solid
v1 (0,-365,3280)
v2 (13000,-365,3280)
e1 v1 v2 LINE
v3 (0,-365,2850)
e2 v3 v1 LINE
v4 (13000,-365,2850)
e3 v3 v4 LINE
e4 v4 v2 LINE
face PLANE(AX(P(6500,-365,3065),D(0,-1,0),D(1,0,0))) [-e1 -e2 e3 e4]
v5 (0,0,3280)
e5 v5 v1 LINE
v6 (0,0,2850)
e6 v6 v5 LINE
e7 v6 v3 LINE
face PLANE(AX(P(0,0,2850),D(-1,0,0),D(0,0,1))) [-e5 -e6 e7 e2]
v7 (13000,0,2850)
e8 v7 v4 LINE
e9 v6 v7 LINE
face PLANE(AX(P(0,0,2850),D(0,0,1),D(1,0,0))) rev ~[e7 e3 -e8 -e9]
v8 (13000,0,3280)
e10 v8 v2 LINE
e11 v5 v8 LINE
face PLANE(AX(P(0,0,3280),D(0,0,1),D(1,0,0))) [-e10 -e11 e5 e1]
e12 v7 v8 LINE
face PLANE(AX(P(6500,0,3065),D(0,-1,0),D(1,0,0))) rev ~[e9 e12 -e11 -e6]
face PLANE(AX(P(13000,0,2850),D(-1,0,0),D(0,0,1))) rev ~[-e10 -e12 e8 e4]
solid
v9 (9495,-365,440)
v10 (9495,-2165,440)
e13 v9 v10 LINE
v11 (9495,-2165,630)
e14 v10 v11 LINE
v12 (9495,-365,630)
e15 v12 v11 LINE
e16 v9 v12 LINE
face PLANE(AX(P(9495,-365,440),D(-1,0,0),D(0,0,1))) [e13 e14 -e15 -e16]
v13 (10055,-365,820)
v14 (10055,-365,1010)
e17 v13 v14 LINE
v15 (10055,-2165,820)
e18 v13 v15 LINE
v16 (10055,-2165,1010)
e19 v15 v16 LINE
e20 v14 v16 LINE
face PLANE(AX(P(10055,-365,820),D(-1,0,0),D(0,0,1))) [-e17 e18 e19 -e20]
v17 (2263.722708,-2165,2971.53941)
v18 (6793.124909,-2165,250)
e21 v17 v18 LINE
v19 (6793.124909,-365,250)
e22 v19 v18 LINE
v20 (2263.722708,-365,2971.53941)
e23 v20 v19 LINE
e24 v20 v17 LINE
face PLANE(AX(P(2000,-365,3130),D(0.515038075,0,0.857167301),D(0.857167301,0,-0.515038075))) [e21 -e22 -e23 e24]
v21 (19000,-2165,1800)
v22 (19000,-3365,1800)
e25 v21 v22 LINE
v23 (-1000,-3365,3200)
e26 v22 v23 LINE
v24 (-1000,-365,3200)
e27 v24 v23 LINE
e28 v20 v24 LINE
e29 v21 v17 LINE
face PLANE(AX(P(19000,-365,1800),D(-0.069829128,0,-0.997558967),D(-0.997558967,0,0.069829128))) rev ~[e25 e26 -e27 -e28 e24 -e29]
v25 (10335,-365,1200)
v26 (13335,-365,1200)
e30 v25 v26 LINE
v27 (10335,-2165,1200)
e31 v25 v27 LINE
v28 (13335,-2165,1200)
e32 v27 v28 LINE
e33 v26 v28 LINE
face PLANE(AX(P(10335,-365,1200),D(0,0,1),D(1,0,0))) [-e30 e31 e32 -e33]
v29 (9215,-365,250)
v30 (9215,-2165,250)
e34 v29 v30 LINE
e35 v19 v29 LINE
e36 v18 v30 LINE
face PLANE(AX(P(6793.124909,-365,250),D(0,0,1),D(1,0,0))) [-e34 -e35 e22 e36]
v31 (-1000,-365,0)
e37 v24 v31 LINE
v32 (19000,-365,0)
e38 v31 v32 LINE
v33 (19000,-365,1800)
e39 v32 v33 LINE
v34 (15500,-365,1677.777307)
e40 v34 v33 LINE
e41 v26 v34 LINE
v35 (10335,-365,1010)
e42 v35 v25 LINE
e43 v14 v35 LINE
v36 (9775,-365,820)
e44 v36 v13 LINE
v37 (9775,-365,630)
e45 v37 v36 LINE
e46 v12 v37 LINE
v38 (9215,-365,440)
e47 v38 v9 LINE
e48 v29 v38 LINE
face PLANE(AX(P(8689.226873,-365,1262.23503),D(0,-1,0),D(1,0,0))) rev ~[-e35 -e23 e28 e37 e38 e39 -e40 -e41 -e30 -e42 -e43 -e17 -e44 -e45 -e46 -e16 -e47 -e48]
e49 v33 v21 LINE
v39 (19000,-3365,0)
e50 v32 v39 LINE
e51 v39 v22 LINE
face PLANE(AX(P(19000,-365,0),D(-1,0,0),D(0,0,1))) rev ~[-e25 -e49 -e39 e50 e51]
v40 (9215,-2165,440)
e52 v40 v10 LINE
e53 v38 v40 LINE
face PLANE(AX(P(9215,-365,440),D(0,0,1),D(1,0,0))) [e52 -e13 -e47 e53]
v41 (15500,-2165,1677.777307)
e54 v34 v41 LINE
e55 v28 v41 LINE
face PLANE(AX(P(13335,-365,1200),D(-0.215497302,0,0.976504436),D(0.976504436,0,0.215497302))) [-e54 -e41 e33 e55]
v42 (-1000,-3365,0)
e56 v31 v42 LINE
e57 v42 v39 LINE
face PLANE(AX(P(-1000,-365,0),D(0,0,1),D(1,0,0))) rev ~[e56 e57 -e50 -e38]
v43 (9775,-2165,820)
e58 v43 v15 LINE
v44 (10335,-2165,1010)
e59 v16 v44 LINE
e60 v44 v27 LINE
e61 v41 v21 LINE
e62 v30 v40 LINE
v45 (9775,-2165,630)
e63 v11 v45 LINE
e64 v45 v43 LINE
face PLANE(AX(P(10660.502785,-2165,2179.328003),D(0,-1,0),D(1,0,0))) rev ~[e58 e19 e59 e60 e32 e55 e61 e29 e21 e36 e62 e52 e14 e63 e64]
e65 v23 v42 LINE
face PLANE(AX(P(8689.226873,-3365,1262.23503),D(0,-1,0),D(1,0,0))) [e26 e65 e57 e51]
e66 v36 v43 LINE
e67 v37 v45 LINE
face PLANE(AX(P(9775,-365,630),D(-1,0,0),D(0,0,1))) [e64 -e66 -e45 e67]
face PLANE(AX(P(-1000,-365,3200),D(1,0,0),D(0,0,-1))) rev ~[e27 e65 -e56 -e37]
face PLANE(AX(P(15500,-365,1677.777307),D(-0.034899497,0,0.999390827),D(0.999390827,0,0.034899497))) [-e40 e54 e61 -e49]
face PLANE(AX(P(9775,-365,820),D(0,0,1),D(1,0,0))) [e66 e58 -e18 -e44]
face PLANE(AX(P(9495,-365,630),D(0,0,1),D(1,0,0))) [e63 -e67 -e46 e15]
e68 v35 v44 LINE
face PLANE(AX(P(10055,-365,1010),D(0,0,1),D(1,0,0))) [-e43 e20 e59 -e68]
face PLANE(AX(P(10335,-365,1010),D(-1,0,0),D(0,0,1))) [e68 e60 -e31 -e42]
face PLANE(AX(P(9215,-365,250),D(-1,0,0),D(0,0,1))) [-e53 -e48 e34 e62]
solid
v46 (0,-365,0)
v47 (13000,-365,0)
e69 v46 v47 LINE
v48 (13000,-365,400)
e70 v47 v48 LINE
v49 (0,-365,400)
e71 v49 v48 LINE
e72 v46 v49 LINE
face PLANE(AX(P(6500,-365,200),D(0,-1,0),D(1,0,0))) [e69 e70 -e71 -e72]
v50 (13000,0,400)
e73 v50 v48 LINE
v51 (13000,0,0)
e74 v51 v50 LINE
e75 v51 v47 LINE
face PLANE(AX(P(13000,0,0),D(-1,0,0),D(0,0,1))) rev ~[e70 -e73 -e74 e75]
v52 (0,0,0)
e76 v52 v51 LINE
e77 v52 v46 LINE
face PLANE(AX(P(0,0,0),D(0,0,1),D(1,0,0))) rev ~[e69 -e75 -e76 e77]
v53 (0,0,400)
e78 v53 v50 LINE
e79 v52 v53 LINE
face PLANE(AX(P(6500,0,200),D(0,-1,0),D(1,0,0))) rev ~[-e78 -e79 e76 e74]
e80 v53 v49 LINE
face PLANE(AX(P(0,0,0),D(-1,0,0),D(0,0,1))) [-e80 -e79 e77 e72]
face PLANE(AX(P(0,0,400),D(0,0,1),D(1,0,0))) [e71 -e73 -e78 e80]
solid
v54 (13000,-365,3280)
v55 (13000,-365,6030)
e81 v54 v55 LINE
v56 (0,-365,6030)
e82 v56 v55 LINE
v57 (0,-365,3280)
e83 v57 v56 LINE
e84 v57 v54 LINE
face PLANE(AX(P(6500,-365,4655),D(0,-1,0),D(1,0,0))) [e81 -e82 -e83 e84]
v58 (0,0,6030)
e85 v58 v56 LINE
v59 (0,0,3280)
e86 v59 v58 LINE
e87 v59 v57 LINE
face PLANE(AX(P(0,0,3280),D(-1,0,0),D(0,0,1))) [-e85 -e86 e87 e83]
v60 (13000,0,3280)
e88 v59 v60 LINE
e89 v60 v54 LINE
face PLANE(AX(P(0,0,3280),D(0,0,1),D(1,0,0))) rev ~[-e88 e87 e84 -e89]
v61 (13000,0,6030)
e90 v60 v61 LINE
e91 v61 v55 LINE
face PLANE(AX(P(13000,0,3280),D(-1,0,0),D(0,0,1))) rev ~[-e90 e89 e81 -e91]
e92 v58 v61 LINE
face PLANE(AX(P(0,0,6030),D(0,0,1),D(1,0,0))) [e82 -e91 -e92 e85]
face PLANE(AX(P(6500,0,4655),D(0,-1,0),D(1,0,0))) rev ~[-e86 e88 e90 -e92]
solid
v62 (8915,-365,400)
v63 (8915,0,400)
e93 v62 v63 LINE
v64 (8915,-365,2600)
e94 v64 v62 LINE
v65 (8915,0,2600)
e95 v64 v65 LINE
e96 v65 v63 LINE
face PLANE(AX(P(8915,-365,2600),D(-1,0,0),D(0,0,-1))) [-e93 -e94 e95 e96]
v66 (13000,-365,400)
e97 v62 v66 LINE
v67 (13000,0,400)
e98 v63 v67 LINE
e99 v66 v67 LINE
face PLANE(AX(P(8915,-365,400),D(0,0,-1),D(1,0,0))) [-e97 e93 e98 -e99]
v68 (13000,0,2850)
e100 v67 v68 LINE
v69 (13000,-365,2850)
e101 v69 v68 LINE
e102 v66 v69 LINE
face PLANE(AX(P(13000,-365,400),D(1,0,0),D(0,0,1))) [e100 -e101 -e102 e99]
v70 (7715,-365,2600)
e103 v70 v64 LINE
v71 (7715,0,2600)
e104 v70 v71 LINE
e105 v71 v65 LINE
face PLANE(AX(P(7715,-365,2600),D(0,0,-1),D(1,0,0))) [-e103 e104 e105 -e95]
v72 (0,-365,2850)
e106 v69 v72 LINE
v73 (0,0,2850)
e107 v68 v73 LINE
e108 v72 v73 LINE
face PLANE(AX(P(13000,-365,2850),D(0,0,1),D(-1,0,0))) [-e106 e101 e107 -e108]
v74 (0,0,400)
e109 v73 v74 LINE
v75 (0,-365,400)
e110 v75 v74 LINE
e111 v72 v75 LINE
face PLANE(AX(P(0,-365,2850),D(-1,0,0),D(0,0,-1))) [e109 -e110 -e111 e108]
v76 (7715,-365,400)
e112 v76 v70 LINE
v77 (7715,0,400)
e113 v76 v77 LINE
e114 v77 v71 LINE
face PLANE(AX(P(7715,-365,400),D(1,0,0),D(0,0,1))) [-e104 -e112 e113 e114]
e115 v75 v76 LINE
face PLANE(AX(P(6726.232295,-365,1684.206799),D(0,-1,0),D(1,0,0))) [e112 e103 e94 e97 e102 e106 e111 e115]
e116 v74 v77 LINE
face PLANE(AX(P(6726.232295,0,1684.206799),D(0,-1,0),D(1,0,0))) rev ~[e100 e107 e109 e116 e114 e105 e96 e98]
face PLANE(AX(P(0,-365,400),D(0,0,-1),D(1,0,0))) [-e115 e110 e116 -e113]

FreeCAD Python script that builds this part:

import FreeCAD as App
import Part
import Sketcher
from FreeCAD import Vector
Q = App.Units.Quantity

doc = App.newDocument("Part")
params = doc.addObject("Spreadsheet::Sheet", "Params")
for row, (alias, value) in enumerate([
    ("sketch1_width", "13000 mm"),
    ("sketch1_height", "400 mm"),
    ("pad1_length", "365 mm"),
    ("sketch2_width", "7715 mm"),
    ("sketch2_width2", "1200 mm"),
    ("sketch2_width3", "4085 mm"),
    ("sketch2_height", "2450 mm"),
    ("sketch2_height2", "2200 mm"),
    ("pad2_length", "365 mm"),
    ("sketch3_width", "13000 mm"),
    ("sketch3_height", "430 mm"),
    ("pad3_length", "365 mm"),
    ("sketch4_width", "13000 mm"),
    ("sketch4_height", "2750 mm"),
    ("pad4_length", "365 mm"),
    ("sketch5_width", "20000 mm"),
    ("sketch5_height", "3200 mm"),
    ("sketch5_height2", "1800 mm"),
    ("pad5_length", "3000 mm"),
    ("sketch6_width", "17000 mm"),
    ("sketch6_width2", "280 mm"),
    ("sketch6_width3", "3000 mm"),
    ("sketch6_height", "190 mm"),
    ("sketch6_height2", "1330 mm"),
    ("pocket1_length", "1800 mm"),
], start=1):
    params.set(f"A{row}", alias)
    params.set(f"B{row}", "=" + value)
    params.setAlias(f"B{row}", alias)

body = doc.addObject("PartDesign::Body", "Body")

# Sketch on XZ plane
sketch1 = body.newObject("Sketcher::SketchObject", "Sketch")
sketch1.AttachmentSupport = (doc.getObject("XZ_Plane"), [""])
sketch1.MapMode = "FlatFace"
sketch1.addGeometry([
    Part.LineSegment(Vector(0, 400, 0), Vector(0, 0, 0)),
    Part.LineSegment(Vector(0, 0, 0), Vector(13000, 0, 0)),
    Part.LineSegment(Vector(13000, 0, 0), Vector(13000, 400, 0)),
    Part.LineSegment(Vector(13000, 400, 0), Vector(0, 400, 0)),
], False)
sketch1.addConstraint([
    Sketcher.Constraint("Coincident", 0, 2, 1, 1),
    Sketcher.Constraint("Coincident", 1, 2, 2, 1),
    Sketcher.Constraint("Coincident", 2, 2, 3, 1),
    Sketcher.Constraint("Coincident", 3, 2, 0, 1),
    Sketcher.Constraint("Vertical", 0),
    Sketcher.Constraint("Horizontal", 1),
    Sketcher.Constraint("Vertical", 2),
    Sketcher.Constraint("Horizontal", 3),
    Sketcher.Constraint("Coincident", 0, 2, -1, 1),
    Sketcher.Constraint("DistanceX", 1, 1, 1, 2, Q("13000 mm")),
    Sketcher.Constraint("DistanceY", 0, 2, 0, 1, Q("400 mm")),
])
sketch1.setExpression("Constraints[9]", "Params.sketch1_width")
sketch1.setExpression("Constraints[10]", "Params.sketch1_height")
pad1 = body.newObject("PartDesign::Pad", "Pad")
pad1.Profile = sketch1
pad1.setExpression("Length", "Params.pad1_length")
body2 = doc.addObject("PartDesign::Body", "Body001")

# Sketch on XZ plane
sketch2 = body2.newObject("Sketcher::SketchObject", "Sketch001")
sketch2.AttachmentSupport = (doc.getObject("XZ_Plane001"), [""])
sketch2.MapMode = "FlatFace"
sketch2.AttachmentOffset = App.Placement(Vector(0, 0, 365), App.Rotation())
sketch2.addGeometry([
    Part.LineSegment(Vector(0, 2850, 0), Vector(0, 400, 0)),  # 0
    Part.LineSegment(Vector(0, 400, 0), Vector(7715, 400, 0)),  # 1
    Part.LineSegment(Vector(7715, 400, 0), Vector(7715, 2600, 0)),  # 2
    Part.LineSegment(Vector(7715, 2600, 0), Vector(8915, 2600, 0)),  # 3
    Part.LineSegment(Vector(8915, 2600, 0), Vector(8915, 400, 0)),  # 4
    Part.LineSegment(Vector(8915, 400, 0), Vector(13000, 400, 0)),  # 5
    Part.LineSegment(Vector(13000, 400, 0), Vector(13000, 2850, 0)),  # 6
    Part.LineSegment(Vector(13000, 2850, 0), Vector(0, 2850, 0)),  # 7
], False)
sketch2.addConstraint([
    Sketcher.Constraint("Coincident", 0, 2, 1, 1),
    Sketcher.Constraint("Coincident", 1, 2, 2, 1),
    Sketcher.Constraint("Coincident", 2, 2, 3, 1),
    Sketcher.Constraint("Coincident", 3, 2, 4, 1),
    Sketcher.Constraint("Coincident", 4, 2, 5, 1),
    Sketcher.Constraint("Coincident", 5, 2, 6, 1),
    Sketcher.Constraint("Coincident", 6, 2, 7, 1),
    Sketcher.Constraint("Coincident", 7, 2, 0, 1),
    Sketcher.Constraint("Vertical", 0),
    Sketcher.Constraint("Horizontal", 1),
    Sketcher.Constraint("Vertical", 2),
    Sketcher.Constraint("Horizontal", 3),
    Sketcher.Constraint("Vertical", 4),
    Sketcher.Constraint("Horizontal", 5),
    Sketcher.Constraint("Vertical", 6),
    Sketcher.Constraint("Horizontal", 7),
    Sketcher.Constraint("PointOnObject", 0, 2, -2),
    Sketcher.Constraint("Horizontal", 1, 2, 4, 2),
    Sketcher.Constraint("DistanceX", 1, 1, 1, 2, Q("7715 mm")),
    Sketcher.Constraint("DistanceX", 3, 1, 3, 2, Q("1200 mm")),
    Sketcher.Constraint("DistanceX", 5, 1, 5, 2, Q("4085 mm")),
    Sketcher.Constraint("DistanceY", 0, 2, 0, 1, Q("2450 mm")),
    Sketcher.Constraint("DistanceY", 2, 1, 2, 2, Q("2200 mm")),
    Sketcher.Constraint("DistanceY", -1, 1, 0, 2, Q("400 mm")),
])
sketch2.setExpression("Constraints[18]", "Params.sketch2_width")
sketch2.setExpression("Constraints[19]", "Params.sketch2_width2")
sketch2.setExpression("Constraints[20]", "Params.sketch2_width3")
sketch2.setExpression("Constraints[21]", "Params.sketch2_height")
sketch2.setExpression("Constraints[22]", "Params.sketch2_height2")
pad2 = body2.newObject("PartDesign::Pad", "Pad001")
pad2.Profile = sketch2
pad2.setExpression("Length", "Params.pad2_length")
pad2.Reversed = True
body3 = doc.addObject("PartDesign::Body", "Body002")

# Sketch on XZ plane
sketch3 = body3.newObject("Sketcher::SketchObject", "Sketch002")
sketch3.AttachmentSupport = (doc.getObject("XZ_Plane002"), [""])
sketch3.MapMode = "FlatFace"
sketch3.addGeometry([
    Part.LineSegment(Vector(0, 3280, 0), Vector(0, 2850, 0)),
    Part.LineSegment(Vector(0, 2850, 0), Vector(13000, 2850, 0)),
    Part.LineSegment(Vector(13000, 2850, 0), Vector(13000, 3280, 0)),
    Part.LineSegment(Vector(13000, 3280, 0), Vector(0, 3280, 0)),
], False)
sketch3.addConstraint([
    Sketcher.Constraint("Coincident", 0, 2, 1, 1),
    Sketcher.Constraint("Coincident", 1, 2, 2, 1),
    Sketcher.Constraint("Coincident", 2, 2, 3, 1),
    Sketcher.Constraint("Coincident", 3, 2, 0, 1),
    Sketcher.Constraint("Vertical", 0),
    Sketcher.Constraint("Horizontal", 1),
    Sketcher.Constraint("Vertical", 2),
    Sketcher.Constraint("Horizontal", 3),
    Sketcher.Constraint("PointOnObject", 0, 2, -2),
    Sketcher.Constraint("DistanceX", 1, 1, 1, 2, Q("13000 mm")),
    Sketcher.Constraint("DistanceY", 0, 2, 0, 1, Q("430 mm")),
    Sketcher.Constraint("DistanceY", -1, 1, 0, 2, Q("2850 mm")),
])
sketch3.setExpression("Constraints[9]", "Params.sketch3_width")
sketch3.setExpression("Constraints[10]", "Params.sketch3_height")
pad3 = body3.newObject("PartDesign::Pad", "Pad002")
pad3.Profile = sketch3
pad3.setExpression("Length", "Params.pad3_length")
body4 = doc.addObject("PartDesign::Body", "Body003")

# Sketch on XZ plane
sketch4 = body4.newObject("Sketcher::SketchObject", "Sketch003")
sketch4.AttachmentSupport = (doc.getObject("XZ_Plane003"), [""])
sketch4.MapMode = "FlatFace"
sketch4.addGeometry([
    Part.LineSegment(Vector(0, 6030, 0), Vector(0, 3280, 0)),
    Part.LineSegment(Vector(0, 3280, 0), Vector(13000, 3280, 0)),
    Part.LineSegment(Vector(13000, 3280, 0), Vector(13000, 6030, 0)),
    Part.LineSegment(Vector(13000, 6030, 0), Vector(0, 6030, 0)),
], False)
sketch4.addConstraint([
    Sketcher.Constraint("Coincident", 0, 2, 1, 1),
    Sketcher.Constraint("Coincident", 1, 2, 2, 1),
    Sketcher.Constraint("Coincident", 2, 2, 3, 1),
    Sketcher.Constraint("Coincident", 3, 2, 0, 1),
    Sketcher.Constraint("Vertical", 0),
    Sketcher.Constraint("Horizontal", 1),
    Sketcher.Constraint("Vertical", 2),
    Sketcher.Constraint("Horizontal", 3),
    Sketcher.Constraint("PointOnObject", 0, 2, -2),
    Sketcher.Constraint("DistanceX", 1, 1, 1, 2, Q("13000 mm")),
    Sketcher.Constraint("DistanceY", 0, 2, 0, 1, Q("2750 mm")),
    Sketcher.Constraint("DistanceY", -1, 1, 0, 2, Q("3280 mm")),
])
sketch4.setExpression("Constraints[9]", "Params.sketch4_width")
sketch4.setExpression("Constraints[10]", "Params.sketch4_height")
pad4 = body4.newObject("PartDesign::Pad", "Pad003")
pad4.Profile = sketch4
pad4.setExpression("Length", "Params.pad4_length")
body5 = doc.addObject("PartDesign::Body", "Body004")

# Sketch on XZ plane
sketch5 = body5.newObject("Sketcher::SketchObject", "Sketch004")
sketch5.AttachmentSupport = (doc.getObject("XZ_Plane004"), [""])
sketch5.MapMode = "FlatFace"
sketch5.AttachmentOffset = App.Placement(Vector(0, 0, 365), App.Rotation())
sketch5.addGeometry([
    Part.LineSegment(Vector(19000, 1800, 0), Vector(-1000, 3200, 0)),
    Part.LineSegment(Vector(-1000, 3200, 0), Vector(-1000, 0, 0)),
    Part.LineSegment(Vector(-1000, 0, 0), Vector(19000, 0, 0)),
    Part.LineSegment(Vector(19000, 0, 0), Vector(19000, 1800, 0)),
], False)
sketch5.addConstraint([
    Sketcher.Constraint("Coincident", 0, 2, 1, 1),
    Sketcher.Constraint("Coincident", 1, 2, 2, 1),
    Sketcher.Constraint("Coincident", 2, 2, 3, 1),
    Sketcher.Constraint("Coincident", 3, 2, 0, 1),
    Sketcher.Constraint("Vertical", 1),
    Sketcher.Constraint("Horizontal", 2),
    Sketcher.Constraint("Vertical", 3),
    Sketcher.Constraint("PointOnObject", 1, 2, -1),
    Sketcher.Constraint("DistanceX", 2, 1, 2, 2, Q("20000 mm")),
    Sketcher.Constraint("DistanceY", 1, 2, 1, 1, Q("3200 mm")),
    Sketcher.Constraint("DistanceY", 3, 1, 3, 2, Q("1800 mm")),
    Sketcher.Constraint("DistanceX", 0, 2, -1, 1, Q("1000 mm")),
])
sketch5.setExpression("Constraints[8]", "Params.sketch5_width")
sketch5.setExpression("Constraints[9]", "Params.sketch5_height")
sketch5.setExpression("Constraints[10]", "Params.sketch5_height2")
pad5 = body5.newObject("PartDesign::Pad", "Pad004")
pad5.Profile = sketch5
pad5.setExpression("Length", "Params.pad5_length")

# Sketch on XZ plane
sketch6 = body5.newObject("Sketcher::SketchObject", "Sketch005")
sketch6.AttachmentSupport = (doc.getObject("XZ_Plane004"), [""])
sketch6.MapMode = "FlatFace"
sketch6.AttachmentOffset = App.Placement(Vector(0, 0, 365), App.Rotation())
sketch6.addGeometry([
    Part.LineSegment(Vector(19000, 3130, 0), Vector(2000, 3130, 0)),  # 0
    Part.LineSegment(Vector(2000, 3130, 0), Vector(6793, 250, 0)),  # 1
    Part.LineSegment(Vector(6793, 250, 0), Vector(9215, 250, 0)),  # 2
    Part.LineSegment(Vector(9215, 250, 0), Vector(9215, 440, 0)),  # 3
    Part.LineSegment(Vector(9215, 440, 0), Vector(9495, 440, 0)),  # 4
    Part.LineSegment(Vector(9495, 440, 0), Vector(9495, 630, 0)),  # 5
    Part.LineSegment(Vector(9495, 630, 0), Vector(9775, 630, 0)),  # 6
    Part.LineSegment(Vector(9775, 630, 0), Vector(9775, 820, 0)),  # 7
    Part.LineSegment(Vector(9775, 820, 0), Vector(10055, 820, 0)),  # 8
    Part.LineSegment(Vector(10055, 820, 0), Vector(10055, 1010, 0)),  # 9
    Part.LineSegment(Vector(10055, 1010, 0), Vector(10335, 1010, 0)),  # 10
    Part.LineSegment(Vector(10335, 1010, 0), Vector(10335, 1200, 0)),  # 11
    Part.LineSegment(Vector(10335, 1200, 0), Vector(13335, 1200, 0)),  # 12
    Part.LineSegment(Vector(13335, 1200, 0), Vector(15500, 1678, 0)),  # 13
    Part.LineSegment(Vector(15500, 1678, 0), Vector(19000, 1800, 0)),  # 14
    Part.LineSegment(Vector(19000, 1800, 0), Vector(19000, 3130, 0)),  # 15
], False)
sketch6.addConstraint([
    Sketcher.Constraint("Coincident", 0, 2, 1, 1),
    Sketcher.Constraint("Coincident", 1, 2, 2, 1),
    Sketcher.Constraint("Coincident", 2, 2, 3, 1),
    Sketcher.Constraint("Coincident", 3, 2, 4, 1),
    Sketcher.Constraint("Coincident", 4, 2, 5, 1),
    Sketcher.Constraint("Coincident", 5, 2, 6, 1),
    Sketcher.Constraint("Coincident", 6, 2, 7, 1),
    Sketcher.Constraint("Coincident", 7, 2, 8, 1),
    Sketcher.Constraint("Coincident", 8, 2, 9, 1),
    Sketcher.Constraint("Coincident", 9, 2, 10, 1),
    Sketcher.Constraint("Coincident", 10, 2, 11, 1),
    Sketcher.Constraint("Coincident", 11, 2, 12, 1),
    Sketcher.Constraint("Coincident", 12, 2, 13, 1),
    Sketcher.Constraint("Coincident", 13, 2, 14, 1),
    Sketcher.Constraint("Coincident", 14, 2, 15, 1),
    Sketcher.Constraint("Coincident", 15, 2, 0, 1),
    Sketcher.Constraint("Horizontal", 0),
    Sketcher.Constraint("Horizontal", 2),
    Sketcher.Constraint("Vertical", 3),
    Sketcher.Constraint("Horizontal", 4),
    Sketcher.Constraint("Vertical", 5),
    Sketcher.Constraint("Horizontal", 6),
    Sketcher.Constraint("Vertical", 7),
    Sketcher.Constraint("Horizontal", 8),
    Sketcher.Constraint("Vertical", 9),
    Sketcher.Constraint("Horizontal", 10),
    Sketcher.Constraint("Vertical", 11),
    Sketcher.Constraint("Horizontal", 12),
    Sketcher.Constraint("Vertical", 15),
    Sketcher.Constraint("Equal", 4, 6),
    Sketcher.Constraint("Equal", 6, 8),
    Sketcher.Constraint("Equal", 8, 10),
    Sketcher.Constraint("Equal", 3, 5),
    Sketcher.Constraint("Equal", 5, 7),
    Sketcher.Constraint("Equal", 7, 9),
    Sketcher.Constraint("Equal", 9, 11),
    Sketcher.Constraint("DistanceX", 0, 2, 0, 1, Q("17000 mm")),
    Sketcher.Constraint("DistanceX", 4, 1, 4, 2, Q("280 mm")),
    Sketcher.Constraint("DistanceX", 12, 1, 12, 2, Q("3000 mm")),
    Sketcher.Constraint("DistanceY", 3, 1, 3, 2, Q("190 mm")),
    Sketcher.Constraint("DistanceY", 15, 1, 15, 2, Q("1330 mm")),
    Sketcher.Constraint("Angle", 1, Q("-31 deg")),
    Sketcher.Constraint("Angle", 14, Q("2 deg")),
    Sketcher.Constraint("DistanceX", -1, 1, 0, 2, Q("2000 mm")),
    Sketcher.Constraint("DistanceY", -1, 1, 0, 2, Q("3130 mm")),
    Sketcher.Constraint("DistanceY", -1, 1, 1, 2, Q("250 mm")),
    Sketcher.Constraint("DistanceX", -1, 1, 2, 2, Q("9215 mm")),
    Sketcher.Constraint("DistanceX", -1, 1, 13, 2, Q("15500 mm")),
])
sketch6.setExpression("Constraints[36]", "Params.sketch6_width")
sketch6.setExpression("Constraints[37]", "Params.sketch6_width2")
sketch6.setExpression("Constraints[38]", "Params.sketch6_width3")
sketch6.setExpression("Constraints[39]", "Params.sketch6_height")
sketch6.setExpression("Constraints[40]", "Params.sketch6_height2")
pocket1 = body5.newObject("PartDesign::Pocket", "Pocket")
pocket1.Profile = sketch6
pocket1.setExpression("Length", "Params.pocket1_length")
pocket1.Reversed = True

doc.recompute()
